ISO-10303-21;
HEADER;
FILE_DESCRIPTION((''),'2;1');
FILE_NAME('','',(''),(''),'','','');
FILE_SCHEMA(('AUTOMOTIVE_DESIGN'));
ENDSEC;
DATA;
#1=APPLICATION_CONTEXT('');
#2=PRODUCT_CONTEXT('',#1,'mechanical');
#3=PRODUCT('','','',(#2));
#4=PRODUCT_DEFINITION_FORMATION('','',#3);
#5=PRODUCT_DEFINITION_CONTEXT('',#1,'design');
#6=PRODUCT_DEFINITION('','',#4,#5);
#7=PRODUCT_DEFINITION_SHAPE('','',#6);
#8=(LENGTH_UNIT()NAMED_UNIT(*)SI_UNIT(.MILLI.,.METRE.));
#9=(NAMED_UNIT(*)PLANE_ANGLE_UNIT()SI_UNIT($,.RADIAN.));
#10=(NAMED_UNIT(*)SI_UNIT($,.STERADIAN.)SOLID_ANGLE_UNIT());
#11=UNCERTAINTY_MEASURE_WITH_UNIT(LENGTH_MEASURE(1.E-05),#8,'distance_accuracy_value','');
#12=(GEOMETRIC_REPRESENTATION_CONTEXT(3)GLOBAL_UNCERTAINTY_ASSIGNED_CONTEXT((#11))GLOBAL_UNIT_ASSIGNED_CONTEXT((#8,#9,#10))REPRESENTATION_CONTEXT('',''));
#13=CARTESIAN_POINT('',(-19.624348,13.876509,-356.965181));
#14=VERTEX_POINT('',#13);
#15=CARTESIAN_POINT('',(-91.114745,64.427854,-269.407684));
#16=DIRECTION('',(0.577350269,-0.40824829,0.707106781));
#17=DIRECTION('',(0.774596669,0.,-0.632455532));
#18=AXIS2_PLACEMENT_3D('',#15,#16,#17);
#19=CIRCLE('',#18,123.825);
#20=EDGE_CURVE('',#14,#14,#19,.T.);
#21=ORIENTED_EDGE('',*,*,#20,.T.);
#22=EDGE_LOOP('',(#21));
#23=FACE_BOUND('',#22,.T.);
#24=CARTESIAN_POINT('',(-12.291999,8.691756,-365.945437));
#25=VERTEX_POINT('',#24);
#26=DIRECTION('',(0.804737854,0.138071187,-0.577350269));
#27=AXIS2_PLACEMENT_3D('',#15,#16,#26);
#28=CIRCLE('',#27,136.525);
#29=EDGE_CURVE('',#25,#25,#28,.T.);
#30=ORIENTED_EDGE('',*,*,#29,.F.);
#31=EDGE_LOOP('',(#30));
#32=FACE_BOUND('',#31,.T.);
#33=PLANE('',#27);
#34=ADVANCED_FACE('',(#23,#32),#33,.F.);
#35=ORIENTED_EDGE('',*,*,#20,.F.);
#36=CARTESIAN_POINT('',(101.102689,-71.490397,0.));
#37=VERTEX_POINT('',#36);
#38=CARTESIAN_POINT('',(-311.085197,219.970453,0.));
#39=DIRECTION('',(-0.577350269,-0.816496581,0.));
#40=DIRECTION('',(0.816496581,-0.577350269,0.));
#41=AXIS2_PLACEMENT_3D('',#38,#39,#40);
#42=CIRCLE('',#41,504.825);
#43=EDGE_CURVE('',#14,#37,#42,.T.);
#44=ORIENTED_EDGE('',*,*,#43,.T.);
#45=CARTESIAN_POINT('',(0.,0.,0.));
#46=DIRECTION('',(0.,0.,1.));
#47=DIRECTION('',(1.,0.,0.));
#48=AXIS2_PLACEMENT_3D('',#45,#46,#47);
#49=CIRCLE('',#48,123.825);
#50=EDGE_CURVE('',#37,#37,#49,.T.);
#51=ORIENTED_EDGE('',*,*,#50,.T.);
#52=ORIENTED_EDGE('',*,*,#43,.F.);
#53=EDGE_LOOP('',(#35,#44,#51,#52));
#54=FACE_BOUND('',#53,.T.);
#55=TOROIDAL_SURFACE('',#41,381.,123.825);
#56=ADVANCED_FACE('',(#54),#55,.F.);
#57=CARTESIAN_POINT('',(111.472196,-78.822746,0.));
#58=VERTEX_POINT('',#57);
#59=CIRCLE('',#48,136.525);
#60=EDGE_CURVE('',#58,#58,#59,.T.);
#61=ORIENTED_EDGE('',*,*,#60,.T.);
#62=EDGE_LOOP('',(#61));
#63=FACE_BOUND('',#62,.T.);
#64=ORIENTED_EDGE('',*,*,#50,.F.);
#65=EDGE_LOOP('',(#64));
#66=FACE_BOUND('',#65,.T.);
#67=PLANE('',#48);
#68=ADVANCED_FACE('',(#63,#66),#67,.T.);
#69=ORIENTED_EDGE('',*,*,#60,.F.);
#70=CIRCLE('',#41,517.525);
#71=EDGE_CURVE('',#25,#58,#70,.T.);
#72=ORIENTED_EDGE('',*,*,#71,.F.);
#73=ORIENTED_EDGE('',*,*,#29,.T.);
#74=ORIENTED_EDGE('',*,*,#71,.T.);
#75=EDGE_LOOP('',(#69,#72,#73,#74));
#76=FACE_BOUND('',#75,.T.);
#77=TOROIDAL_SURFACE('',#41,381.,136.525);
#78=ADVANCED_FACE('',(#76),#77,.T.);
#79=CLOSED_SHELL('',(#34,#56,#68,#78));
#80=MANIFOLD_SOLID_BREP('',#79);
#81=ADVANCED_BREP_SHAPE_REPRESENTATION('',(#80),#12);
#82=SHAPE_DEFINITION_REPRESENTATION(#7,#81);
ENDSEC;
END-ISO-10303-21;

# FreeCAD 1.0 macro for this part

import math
import FreeCAD as App
import Part
import Sketcher

V = App.Vector
Q = App.Units.Quantity

doc = App.newDocument("Part")
body = doc.addObject("PartDesign::Body", "Body")

sketch1 = body.newObject("Sketcher::SketchObject", "Sketch")
sketch1.AttachmentSupport = (doc.getObject("XY_Plane"), [""])
sketch1.MapMode = "FlatFace"
sketch1.addGeometry([
    Part.Circle(V(0, 0, 0), V(0, 0, 1), 136.525),
    Part.Circle(V(0, 0, 0), V(0, 0, 1), 123.825),
], False)
sketch1.addConstraint([
    Sketcher.Constraint("Coincident", 0, 3, -1, 1),
    Sketcher.Constraint("Coincident", 1, 3, -1, 1),
    Sketcher.Constraint("Diameter", 0, Q("10.75 in")),
    Sketcher.Constraint("Diameter", 1, Q("9.75 in")),
])

sketch2 = body.newObject("Sketcher::SketchObject", "Sketch001")
sketch2.Placement = App.Placement(V(0, 0, 0), App.Rotation(V(-0.816496581, 0.577350269, 0), V(0, 0, 1), V(0.577350269, 0.816496581, 0), "ZXY"))
sketch2.addGeometry(Part.ArcOfCircle(Part.Circle(V(381, 0, 0), V(0, 0, 1), 381), math.radians(-180), math.radians(-135)), False)
sketch2.addConstraint([
    Sketcher.Constraint("Coincident", 0, 1, -1, 1),
    Sketcher.Constraint("PointOnObject", 0, 3, -1),
    Sketcher.Constraint("Radius", 0, Q("15 in")),
    Sketcher.Constraint("DistanceX", -1, 1, 0, 2, Q("111.592316 mm")),
])
doc.recompute()

additivepipe = body.newObject("PartDesign::AdditivePipe", "AdditivePipe")
additivepipe.Profile = sketch1
additivepipe.Spine = (sketch2, ["Edge1"])

doc.recompute()
